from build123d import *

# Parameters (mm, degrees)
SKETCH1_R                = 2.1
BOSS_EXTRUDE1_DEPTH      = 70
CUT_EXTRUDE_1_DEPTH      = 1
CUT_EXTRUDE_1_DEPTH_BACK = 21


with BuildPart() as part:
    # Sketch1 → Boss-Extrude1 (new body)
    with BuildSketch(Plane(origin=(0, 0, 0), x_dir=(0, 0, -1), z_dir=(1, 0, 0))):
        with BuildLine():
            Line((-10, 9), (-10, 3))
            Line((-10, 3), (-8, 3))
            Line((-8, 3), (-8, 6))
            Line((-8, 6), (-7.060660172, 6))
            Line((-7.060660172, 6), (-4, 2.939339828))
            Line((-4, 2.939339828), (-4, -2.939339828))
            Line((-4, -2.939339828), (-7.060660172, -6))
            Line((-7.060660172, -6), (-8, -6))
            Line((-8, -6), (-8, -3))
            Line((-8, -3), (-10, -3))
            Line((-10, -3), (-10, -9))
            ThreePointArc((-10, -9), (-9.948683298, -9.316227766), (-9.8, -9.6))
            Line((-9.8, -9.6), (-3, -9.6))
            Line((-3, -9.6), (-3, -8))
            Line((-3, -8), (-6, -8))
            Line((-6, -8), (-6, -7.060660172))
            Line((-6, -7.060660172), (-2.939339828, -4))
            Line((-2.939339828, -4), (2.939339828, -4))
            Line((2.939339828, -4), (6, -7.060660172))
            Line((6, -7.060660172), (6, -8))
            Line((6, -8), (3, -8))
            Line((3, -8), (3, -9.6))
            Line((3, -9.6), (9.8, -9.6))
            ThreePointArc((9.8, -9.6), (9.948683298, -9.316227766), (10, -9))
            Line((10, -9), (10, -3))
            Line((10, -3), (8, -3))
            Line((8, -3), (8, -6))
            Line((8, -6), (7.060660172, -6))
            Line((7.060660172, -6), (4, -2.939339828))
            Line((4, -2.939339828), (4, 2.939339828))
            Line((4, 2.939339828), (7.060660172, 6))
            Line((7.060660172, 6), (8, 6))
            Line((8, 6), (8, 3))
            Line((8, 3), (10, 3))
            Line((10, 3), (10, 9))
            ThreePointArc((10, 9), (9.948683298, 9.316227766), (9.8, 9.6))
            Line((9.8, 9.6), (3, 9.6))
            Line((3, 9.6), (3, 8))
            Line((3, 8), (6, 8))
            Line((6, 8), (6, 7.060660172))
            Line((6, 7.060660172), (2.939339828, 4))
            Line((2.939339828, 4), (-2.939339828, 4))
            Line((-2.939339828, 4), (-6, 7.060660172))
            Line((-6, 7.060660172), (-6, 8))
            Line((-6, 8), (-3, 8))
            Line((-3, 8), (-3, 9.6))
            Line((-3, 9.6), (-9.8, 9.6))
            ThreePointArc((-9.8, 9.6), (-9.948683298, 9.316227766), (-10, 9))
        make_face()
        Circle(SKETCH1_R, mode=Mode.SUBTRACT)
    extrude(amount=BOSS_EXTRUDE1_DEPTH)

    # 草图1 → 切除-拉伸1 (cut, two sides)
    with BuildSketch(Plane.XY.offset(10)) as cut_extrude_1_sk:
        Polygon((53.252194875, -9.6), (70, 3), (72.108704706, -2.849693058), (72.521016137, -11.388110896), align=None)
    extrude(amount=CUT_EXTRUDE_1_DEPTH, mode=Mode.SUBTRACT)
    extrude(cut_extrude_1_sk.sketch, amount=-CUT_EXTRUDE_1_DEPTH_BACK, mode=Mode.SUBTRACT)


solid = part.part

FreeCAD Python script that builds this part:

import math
import FreeCAD as App
import Part
import Sketcher
from FreeCAD import Vector


def add_polygon(sketch, points):
    """Adds a closed chain of lines whose ends are joined by coincident constraints."""
    first, n = sketch.GeometryCount, len(points)
    for a, b in zip(points, points[1:] + points[:1]):
        sketch.addGeometry(Part.LineSegment(App.Vector(*a, 0), App.Vector(*b, 0)), False)
    for i in range(n):
        sketch.addConstraint(Sketcher.Constraint("Coincident", first + i, 2, first + (i + 1) % n, 1))

doc = App.newDocument("Part")
body = doc.addObject("PartDesign::Body", "Body")

# Sketch on YZ plane
sketch1 = body.newObject("Sketcher::SketchObject", "Sketch")
sketch1.AttachmentSupport = (doc.getObject("YZ_Plane"), [""])
sketch1.MapMode = "FlatFace"
sketch1.addGeometry([
    Part.LineSegment(Vector(9, 10, 0), Vector(3, 10, 0)),  # 0
    Part.LineSegment(Vector(3, 10, 0), Vector(3, 8, 0)),  # 1
    Part.LineSegment(Vector(3, 8, 0), Vector(6, 8, 0)),  # 2
    Part.LineSegment(Vector(6, 8, 0), Vector(6, 7.06066, 0)),  # 3
    Part.LineSegment(Vector(6, 7.06066, 0), Vector(2.93934, 4, 0)),  # 4
    Part.LineSegment(Vector(2.93934, 4, 0), Vector(-2.93934, 4, 0)),  # 5
    Part.LineSegment(Vector(-2.93934, 4, 0), Vector(-6, 7.06066, 0)),  # 6
    Part.LineSegment(Vector(-6, 7.06066, 0), Vector(-6, 8, 0)),  # 7
    Part.LineSegment(Vector(-6, 8, 0), Vector(-3, 8, 0)),  # 8
    Part.LineSegment(Vector(-3, 8, 0), Vector(-3, 10, 0)),  # 9
    Part.LineSegment(Vector(-3, 10, 0), Vector(-9, 10, 0)),  # 10
    Part.ArcOfCircle(Part.Circle(Vector(-9, 9, 0), Vector(0, 0, 1), 1), math.radians(90), math.radians(126.869898)),  # 11
    Part.LineSegment(Vector(-9.6, 9.8, 0), Vector(-9.6, 3, 0)),  # 12
    Part.LineSegment(Vector(-9.6, 3, 0), Vector(-8, 3, 0)),  # 13
    Part.LineSegment(Vector(-8, 3, 0), Vector(-8, 6, 0)),  # 14
    Part.LineSegment(Vector(-8, 6, 0), Vector(-7.06066, 6, 0)),  # 15
    Part.LineSegment(Vector(-7.06066, 6, 0), Vector(-4, 2.93934, 0)),  # 16
    Part.LineSegment(Vector(-4, 2.93934, 0), Vector(-4, -2.93934, 0)),  # 17
    Part.LineSegment(Vector(-4, -2.93934, 0), Vector(-7.06066, -6, 0)),  # 18
    Part.LineSegment(Vector(-7.06066, -6, 0), Vector(-8, -6, 0)),  # 19
    Part.LineSegment(Vector(-8, -6, 0), Vector(-8, -3, 0)),  # 20
    Part.LineSegment(Vector(-8, -3, 0), Vector(-9.6, -3, 0)),  # 21
    Part.LineSegment(Vector(-9.6, -3, 0), Vector(-9.6, -9.8, 0)),  # 22
    Part.ArcOfCircle(Part.Circle(Vector(-9, -9, 0), Vector(0, 0, 1), 1), math.radians(-126.869898), math.radians(-90)),  # 23
    Part.LineSegment(Vector(-9, -10, 0), Vector(-3, -10, 0)),  # 24
    Part.LineSegment(Vector(-3, -10, 0), Vector(-3, -8, 0)),  # 25
    Part.LineSegment(Vector(-3, -8, 0), Vector(-6, -8, 0)),  # 26
    Part.LineSegment(Vector(-6, -8, 0), Vector(-6, -7.06066, 0)),  # 27
    Part.LineSegment(Vector(-6, -7.06066, 0), Vector(-2.93934, -4, 0)),  # 28
    Part.LineSegment(Vector(-2.93934, -4, 0), Vector(2.93934, -4, 0)),  # 29
    Part.LineSegment(Vector(2.93934, -4, 0), Vector(6, -7.06066, 0)),  # 30
    Part.LineSegment(Vector(6, -7.06066, 0), Vector(6, -8, 0)),  # 31
    Part.LineSegment(Vector(6, -8, 0), Vector(3, -8, 0)),  # 32
    Part.LineSegment(Vector(3, -8, 0), Vector(3, -10, 0)),  # 33
    Part.LineSegment(Vector(3, -10, 0), Vector(9, -10, 0)),  # 34
    Part.ArcOfCircle(Part.Circle(Vector(9, -9, 0), Vector(0, 0, 1), 1), math.radians(-90), math.radians(-53.130102)),  # 35
    Part.LineSegment(Vector(9.6, -9.8, 0), Vector(9.6, -3, 0)),  # 36
    Part.LineSegment(Vector(9.6, -3, 0), Vector(8, -3, 0)),  # 37
    Part.LineSegment(Vector(8, -3, 0), Vector(8, -6, 0)),  # 38
    Part.LineSegment(Vector(8, -6, 0), Vector(7.06066, -6, 0)),  # 39
    Part.LineSegment(Vector(7.06066, -6, 0), Vector(4, -2.93934, 0)),  # 40
    Part.LineSegment(Vector(4, -2.93934, 0), Vector(4, 2.93934, 0)),  # 41
    Part.LineSegment(Vector(4, 2.93934, 0), Vector(7.06066, 6, 0)),  # 42
    Part.LineSegment(Vector(7.06066, 6, 0), Vector(8, 6, 0)),  # 43
    Part.LineSegment(Vector(8, 6, 0), Vector(8, 3, 0)),  # 44
    Part.LineSegment(Vector(8, 3, 0), Vector(9.6, 3, 0)),  # 45
    Part.LineSegment(Vector(9.6, 3, 0), Vector(9.6, 9.8, 0)),  # 46
    Part.ArcOfCircle(Part.Circle(Vector(9, 9, 0), Vector(0, 0, 1), 1), math.radians(53.130102), math.radians(90)),  # 47
    Part.Circle(Vector(0, 0, 0), Vector(0, 0, 1), 2.1),  # 48
], False)
sketch1.addConstraint([
    Sketcher.Constraint("Coincident", 0, 2, 1, 1),
    Sketcher.Constraint("Coincident", 1, 2, 2, 1),
    Sketcher.Constraint("Coincident", 2, 2, 3, 1),
    Sketcher.Constraint("Coincident", 3, 2, 4, 1),
    Sketcher.Constraint("Coincident", 4, 2, 5, 1),
    Sketcher.Constraint("Coincident", 5, 2, 6, 1),
    Sketcher.Constraint("Coincident", 6, 2, 7, 1),
    Sketcher.Constraint("Coincident", 7, 2, 8, 1),
    Sketcher.Constraint("Coincident", 8, 2, 9, 1),
    Sketcher.Constraint("Coincident", 9, 2, 10, 1),
    Sketcher.Constraint("Tangent", 10, 2, 11, 1),
    Sketcher.Constraint("Coincident", 11, 2, 12, 1),
    Sketcher.Constraint("Coincident", 12, 2, 13, 1),
    Sketcher.Constraint("Coincident", 13, 2, 14, 1),
    Sketcher.Constraint("Coincident", 14, 2, 15, 1),
    Sketcher.Constraint("Coincident", 15, 2, 16, 1),
    Sketcher.Constraint("Coincident", 16, 2, 17, 1),
    Sketcher.Constraint("Coincident", 17, 2, 18, 1),
    Sketcher.Constraint("Coincident", 18, 2, 19, 1),
    Sketcher.Constraint("Coincident", 19, 2, 20, 1),
    Sketcher.Constraint("Coincident", 20, 2, 21, 1),
    Sketcher.Constraint("Coincident", 21, 2, 22, 1),
    Sketcher.Constraint("Coincident", 22, 2, 23, 1),
    Sketcher.Constraint("Tangent", 23, 2, 24, 1),
    Sketcher.Constraint("Coincident", 24, 2, 25, 1),
    Sketcher.Constraint("Coincident", 25, 2, 26, 1),
    Sketcher.Constraint("Coincident", 26, 2, 27, 1),
    Sketcher.Constraint("Coincident", 27, 2, 28, 1),
    Sketcher.Constraint("Coincident", 28, 2, 29, 1),
    Sketcher.Constraint("Coincident", 29, 2, 30, 1),
    Sketcher.Constraint("Coincident", 30, 2, 31, 1),
    Sketcher.Constraint("Coincident", 31, 2, 32, 1),
    Sketcher.Constraint("Coincident", 32, 2, 33, 1),
    Sketcher.Constraint("Coincident", 33, 2, 34, 1),
    Sketcher.Constraint("Tangent", 34, 2, 35, 1),
    Sketcher.Constraint("Coincident", 35, 2, 36, 1),
    Sketcher.Constraint("Coincident", 36, 2, 37, 1),
    Sketcher.Constraint("Coincident", 37, 2, 38, 1),
    Sketcher.Constraint("Coincident", 38, 2, 39, 1),
    Sketcher.Constraint("Coincident", 39, 2, 40, 1),
    Sketcher.Constraint("Coincident", 40, 2, 41, 1),
    Sketcher.Constraint("Coincident", 41, 2, 42, 1),
    Sketcher.Constraint("Coincident", 42, 2, 43, 1),
    Sketcher.Constraint("Coincident", 43, 2, 44, 1),
    Sketcher.Constraint("Coincident", 44, 2, 45, 1),
    Sketcher.Constraint("Coincident", 45, 2, 46, 1),
    Sketcher.Constraint("Coincident", 46, 2, 47, 1),
    Sketcher.Constraint("Tangent", 47, 2, 0, 1),
    Sketcher.Constraint("Horizontal", 0),
    Sketcher.Constraint("Vertical", 1),
    Sketcher.Constraint("Horizontal", 2),
    Sketcher.Constraint("Vertical", 3),
    Sketcher.Constraint("Horizontal", 5),
    Sketcher.Constraint("Vertical", 7),
    Sketcher.Constraint("Horizontal", 8),
    Sketcher.Constraint("Vertical", 9),
    Sketcher.Constraint("Horizontal", 10),
    Sketcher.Constraint("Vertical", 12),
    Sketcher.Constraint("Horizontal", 13),
    Sketcher.Constraint("Vertical", 14),
    Sketcher.Constraint("Horizontal", 15),
    Sketcher.Constraint("Vertical", 17),
    Sketcher.Constraint("Horizontal", 19),
    Sketcher.Constraint("Vertical", 20),
    Sketcher.Constraint("Horizontal", 21),
    Sketcher.Constraint("Vertical", 22),
    Sketcher.Constraint("Horizontal", 24),
    Sketcher.Constraint("Vertical", 25),
    Sketcher.Constraint("Horizontal", 26),
    Sketcher.Constraint("Vertical", 27),
    Sketcher.Constraint("Horizontal", 29),
    Sketcher.Constraint("Vertical", 31),
    Sketcher.Constraint("Horizontal", 32),
    Sketcher.Constraint("Vertical", 33),
    Sketcher.Constraint("Horizontal", 34),
    Sketcher.Constraint("Vertical", 36),
    Sketcher.Constraint("Horizontal", 37),
    Sketcher.Constraint("Vertical", 38),
    Sketcher.Constraint("Horizontal", 39),
    Sketcher.Constraint("Vertical", 41),
    Sketcher.Constraint("Horizontal", 43),
    Sketcher.Constraint("Vertical", 44),
    Sketcher.Constraint("Horizontal", 45),
    Sketcher.Constraint("Vertical", 46),
    Sketcher.Constraint("Coincident", 48, 3, -1, 1),
    Sketcher.Constraint("Equal", 11, 23),
    Sketcher.Constraint("Equal", 23, 35),
    Sketcher.Constraint("Equal", 35, 47),
    Sketcher.Constraint("Symmetric", 11, 3, 35, 3, -1, 1),
    Sketcher.Constraint("Symmetric", 23, 3, 47, 3, -1, 1),
    Sketcher.Constraint("Symmetric", 1, 2, 25, 2, -1, 1),
    Sketcher.Constraint("Symmetric", 3, 2, 27, 2, -1, 1),
    Sketcher.Constraint("Symmetric", 4, 2, 28, 2, -1, 1),
    Sketcher.Constraint("Symmetric", 6, 2, 30, 2, -1, 1),
    Sketcher.Constraint("Symmetric", 8, 2, 32, 2, -1, 1),
    Sketcher.Constraint("Symmetric", 12, 2, 36, 2, -1, 1),
    Sketcher.Constraint("Symmetric", 14, 2, 38, 2, -1, 1),
    Sketcher.Constraint("Symmetric", 16, 2, 40, 2, -1, 1),
    Sketcher.Constraint("Symmetric", 18, 2, 42, 2, -1, 1),
    Sketcher.Constraint("Symmetric", 20, 2, 44, 2, -1, 1),
    Sketcher.Constraint("Symmetric", 23, 3, 35, 3, -2),
    Sketcher.Constraint("Symmetric", 3, 2, 6, 2, -2),
    Sketcher.Constraint("Symmetric", 1, 2, 8, 2, -2),
    Sketcher.Constraint("Symmetric", 21, 2, 36, 2, -2),
    Sketcher.Constraint("Symmetric", 19, 2, 38, 2, -2),
    Sketcher.Constraint("Perpendicular", 4, 6),
    Sketcher.Constraint("Parallel", 6, 16),
    Sketcher.Constraint("Perpendicular", 16, 18),
    Sketcher.Constraint("Perpendicular", 28, 30),
    Sketcher.Constraint("Parallel", 30, 40),
    Sketcher.Constraint("Perpendicular", 40, 42),
    Sketcher.Constraint("Horizontal", 17, 2, 40, 2),
    Sketcher.Constraint("Horizontal", 11, 2, 46, 2),
    Sketcher.Constraint("Vertical", 15, 2, 18, 2),
    Sketcher.Constraint("Equal", 43, 3),
    Sketcher.Constraint("Equal", 32, 14),
    Sketcher.Constraint("Equal", 29, 17),
    Sketcher.Constraint("Equal", 6, 16),
    Sketcher.Constraint("Radius", 11, 1.0),
    Sketcher.Constraint("Diameter", 48, 4.2),
    Sketcher.Constraint("DistanceX", 0, 2, 0, 1, 6.0),
    Sketcher.Constraint("DistanceX", 2, 1, 2, 2, 3.0),
    Sketcher.Constraint("DistanceY", 1, 2, 1, 1, 2.0),
    Sketcher.Constraint("DistanceX", 13, 1, 13, 2, 1.6),
    Sketcher.Constraint("DistanceY", 12, 2, 12, 1, 6.8),
    Sketcher.Constraint("DistanceX", 11, 3, -1, 1, 9.0),
    Sketcher.Constraint("DistanceY", -1, 1, 11, 3, 9.0),
    Sketcher.Constraint("DistanceY", -1, 1, 4, 2, 4.0),
    Sketcher.Constraint("DistanceX", 5, 2, 5, 1, 5.87868),
])
pad1 = body.newObject("PartDesign::Pad", "Pad")
pad1.Profile = sketch1
pad1.Length = 70

# Sketch on XY plane
sketch2 = body.newObject("Sketcher::SketchObject", "Sketch001")
sketch2.AttachmentSupport = (doc.getObject("XY_Plane"), [""])
sketch2.MapMode = "FlatFace"
sketch2.AttachmentOffset = App.Placement(Vector(0, 0, 10), App.Rotation())
add_polygon(sketch2, [(70, 3), (53.252195, -9.6), (72.521016, -11.388111), (72.108705, -2.849693)])  # lines 0-3
sketch2.addConstraint([
    Sketcher.Constraint("DistanceX", -1, 1, 3, 2, 70.0),
    Sketcher.Constraint("DistanceY", -1, 1, 3, 2, 3.0),
    Sketcher.Constraint("DistanceY", 0, 2, -1, 1, 9.6),
    Sketcher.Constraint("Distance", 1, 19.35161),
    Sketcher.Constraint("DistanceY", 1, 2, -1, 1, 11.388111),
    Sketcher.Constraint("DistanceX", 2, 2, 1, 2, 0.412311),
    Sketcher.Constraint("Distance", 0, 20.958267),
    Sketcher.Constraint("Distance", 2, 8.548367),
])
pocket1 = body.newObject("PartDesign::Pocket", "Pocket")
pocket1.Profile = sketch2
pocket1.Type = "ThroughAll"
pocket1.Midplane = True

doc.recompute()
